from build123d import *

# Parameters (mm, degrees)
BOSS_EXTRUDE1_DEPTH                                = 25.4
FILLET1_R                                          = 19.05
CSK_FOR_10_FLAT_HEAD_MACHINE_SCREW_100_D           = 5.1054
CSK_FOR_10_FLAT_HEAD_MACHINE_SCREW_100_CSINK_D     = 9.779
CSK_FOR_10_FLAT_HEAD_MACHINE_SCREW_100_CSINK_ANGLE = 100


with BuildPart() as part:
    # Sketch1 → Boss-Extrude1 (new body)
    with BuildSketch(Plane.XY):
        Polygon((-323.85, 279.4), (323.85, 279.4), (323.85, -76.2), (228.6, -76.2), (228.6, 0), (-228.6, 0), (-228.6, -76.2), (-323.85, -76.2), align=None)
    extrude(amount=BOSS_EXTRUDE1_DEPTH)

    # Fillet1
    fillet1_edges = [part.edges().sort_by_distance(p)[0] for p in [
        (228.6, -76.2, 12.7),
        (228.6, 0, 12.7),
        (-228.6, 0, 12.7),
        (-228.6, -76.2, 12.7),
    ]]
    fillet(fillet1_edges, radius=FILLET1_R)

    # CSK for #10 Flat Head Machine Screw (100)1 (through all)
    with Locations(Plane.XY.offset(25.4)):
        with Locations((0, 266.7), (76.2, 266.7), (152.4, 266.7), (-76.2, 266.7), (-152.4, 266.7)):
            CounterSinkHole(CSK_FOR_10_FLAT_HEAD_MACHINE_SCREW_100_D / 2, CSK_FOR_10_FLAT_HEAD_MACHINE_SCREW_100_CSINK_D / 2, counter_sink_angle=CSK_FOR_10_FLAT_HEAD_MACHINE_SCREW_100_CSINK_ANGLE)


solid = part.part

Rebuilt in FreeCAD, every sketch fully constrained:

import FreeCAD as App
import Part
import Sketcher
from FreeCAD import Vector
Q = App.Units.Quantity


def edges_at(feature, points):
    """Names of the edges that pass closest to the given points."""
    edges = feature.Shape.Edges
    near = lambda p: min(range(len(edges)), key=lambda i: edges[i].distToShape(Part.Vertex(*p))[0])
    return sorted({f"Edge{near(p) + 1}" for p in points})

doc = App.newDocument("Part")
body = doc.addObject("PartDesign::Body", "Body")

sketch1 = body.newObject("Sketcher::SketchObject", "Sketch")
sketch1.AttachmentSupport = (doc.getObject("XY_Plane"), [""])
sketch1.MapMode = "FlatFace"
sketch1.addGeometry([
    Part.LineSegment(Vector(324, 279, 0), Vector(-324, 279, 0)),
    Part.LineSegment(Vector(-324, 279, 0), Vector(-324, -76, 0)),
    Part.LineSegment(Vector(-324, -76, 0), Vector(-229, -76, 0)),
    Part.LineSegment(Vector(-229, -76, 0), Vector(-229, 0, 0)),
    Part.LineSegment(Vector(-229, 0, 0), Vector(229, 0, 0)),
    Part.LineSegment(Vector(229, 0, 0), Vector(229, -76, 0)),
    Part.LineSegment(Vector(229, -76, 0), Vector(324, -76, 0)),
    Part.LineSegment(Vector(324, -76, 0), Vector(324, 279, 0)),
], False)
sketch1.addConstraint([
    Sketcher.Constraint("Coincident", 0, 2, 1, 1),
    Sketcher.Constraint("Coincident", 1, 2, 2, 1),
    Sketcher.Constraint("Coincident", 2, 2, 3, 1),
    Sketcher.Constraint("Coincident", 3, 2, 4, 1),
    Sketcher.Constraint("Coincident", 4, 2, 5, 1),
    Sketcher.Constraint("Coincident", 5, 2, 6, 1),
    Sketcher.Constraint("Coincident", 6, 2, 7, 1),
    Sketcher.Constraint("Coincident", 7, 2, 0, 1),
    Sketcher.Constraint("Horizontal", 0),
    Sketcher.Constraint("Vertical", 1),
    Sketcher.Constraint("Horizontal", 2),
    Sketcher.Constraint("Vertical", 3),
    Sketcher.Constraint("Horizontal", 4),
    Sketcher.Constraint("Vertical", 5),
    Sketcher.Constraint("Horizontal", 6),
    Sketcher.Constraint("Vertical", 7),
    Sketcher.Constraint("Symmetric", 3, 2, 4, 2, -1, 1),
    Sketcher.Constraint("Symmetric", 1, 2, 6, 2, -2),
    Sketcher.Constraint("DistanceX", 4, 1, 4, 2, Q("18 in")),
    Sketcher.Constraint("DistanceY", 1, 2, 1, 1, Q("14 in")),
    Sketcher.Constraint("DistanceY", 3, 1, 3, 2, Q("3 in")),
    Sketcher.Constraint("DistanceX", 0, 2, 0, 1, Q("25.5 in")),
])
pad1 = body.newObject("PartDesign::Pad", "Pad")
pad1.Profile = sketch1
pad1.Length = Q("1 in")
doc.recompute()

fillet = body.newObject("PartDesign::Fillet", "Fillet")
fillet.Base = (pad1, edges_at(pad1, [
    (228.6, -76.2, 12.7),
    (228.6, 0, 12.7),
    (-228.6, 0, 12.7),
    (-228.6, -76.2, 12.7),
]))
fillet.Radius = Q("0.75 in")

sketch2 = body.newObject("Sketcher::SketchObject", "Sketch001")
sketch2.AttachmentSupport = (doc.getObject("XY_Plane"), [""])
sketch2.MapMode = "FlatFace"
sketch2.AttachmentOffset = App.Placement(Vector(0, 0, 1 * 25.4), App.Rotation())
sketch2.addGeometry([
    Part.Circle(Vector(0, 266.7, 0), Vector(0, 0, 1), 2.6),
    Part.Circle(Vector(76.2, 266.7, 0), Vector(0, 0, 1), 2.6),
    Part.Circle(Vector(152.4, 266.7, 0), Vector(0, 0, 1), 2.6),
    Part.Circle(Vector(-76.2, 266.7, 0), Vector(0, 0, 1), 2.6),
    Part.Circle(Vector(-152.4, 266.7, 0), Vector(0, 0, 1), 2.6),
], False)
sketch2.addConstraint([
    Sketcher.Constraint("Equal", 0, 1),
    Sketcher.Constraint("Equal", 1, 2),
    Sketcher.Constraint("Equal", 2, 3),
    Sketcher.Constraint("Equal", 3, 4),
    Sketcher.Constraint("Symmetric", 1, 3, 3, 3, -2),
    Sketcher.Constraint("Symmetric", 2, 3, 4, 3, -2),
    Sketcher.Constraint("PointOnObject", 0, 3, -2),
    Sketcher.Constraint("Horizontal", 0, 3, 1, 3),
    Sketcher.Constraint("Horizontal", 1, 3, 2, 3),
    Sketcher.Constraint("Diameter", 0, Q("0.201 in")),
    Sketcher.Constraint("DistanceX", -1, 1, 1, 3, Q("3 in")),
    Sketcher.Constraint("DistanceX", -1, 1, 2, 3, Q("6 in")),
    Sketcher.Constraint("DistanceY", -1, 1, 0, 3, Q("10.5 in")),
])
doc.recompute()
hole = body.newObject("PartDesign::Hole", "Hole")
hole.Profile = sketch2
hole.ThreadType = "None"
hole.Diameter = Q("0.201 in")
hole.DepthType = "ThroughAll"
hole.HoleCutType = "Countersink"
hole.HoleCutDiameter = Q("0.385 in")
hole.HoleCutCountersinkAngle = 100

doc.recompute()
